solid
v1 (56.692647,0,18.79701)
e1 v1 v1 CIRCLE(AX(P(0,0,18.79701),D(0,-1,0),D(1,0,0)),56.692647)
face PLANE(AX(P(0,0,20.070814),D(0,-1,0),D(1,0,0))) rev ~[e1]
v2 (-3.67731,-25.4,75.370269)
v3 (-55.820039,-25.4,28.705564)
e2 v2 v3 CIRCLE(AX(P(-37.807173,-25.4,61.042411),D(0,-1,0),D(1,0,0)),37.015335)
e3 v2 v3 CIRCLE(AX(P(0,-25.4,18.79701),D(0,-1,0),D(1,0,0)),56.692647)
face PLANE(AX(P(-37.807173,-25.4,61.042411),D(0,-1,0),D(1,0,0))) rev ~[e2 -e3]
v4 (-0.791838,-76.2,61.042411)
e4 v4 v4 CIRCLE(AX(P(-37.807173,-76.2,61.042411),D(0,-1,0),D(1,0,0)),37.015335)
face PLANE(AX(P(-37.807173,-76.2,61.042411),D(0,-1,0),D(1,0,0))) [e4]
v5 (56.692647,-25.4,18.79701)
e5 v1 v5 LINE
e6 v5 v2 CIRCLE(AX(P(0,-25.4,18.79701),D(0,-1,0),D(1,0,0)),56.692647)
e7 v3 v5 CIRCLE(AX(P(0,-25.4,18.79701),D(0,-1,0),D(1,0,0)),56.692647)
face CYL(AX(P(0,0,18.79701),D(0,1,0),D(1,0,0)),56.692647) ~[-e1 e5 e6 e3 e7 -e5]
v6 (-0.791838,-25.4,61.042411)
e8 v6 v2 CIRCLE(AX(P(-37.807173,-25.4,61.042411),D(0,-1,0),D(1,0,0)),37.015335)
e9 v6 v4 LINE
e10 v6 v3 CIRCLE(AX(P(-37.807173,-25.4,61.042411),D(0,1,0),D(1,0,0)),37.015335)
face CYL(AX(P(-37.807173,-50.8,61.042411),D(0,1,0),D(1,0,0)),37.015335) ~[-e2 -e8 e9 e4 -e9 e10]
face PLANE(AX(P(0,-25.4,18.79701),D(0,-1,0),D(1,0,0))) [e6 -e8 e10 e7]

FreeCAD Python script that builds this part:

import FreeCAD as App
import Part
import Sketcher
Q = App.Units.Quantity

doc = App.newDocument("Part")
params = doc.addObject("Spreadsheet::Sheet", "Params")
for row, (alias, value) in enumerate([
    ("pad1_length", "1 in"),
    ("pad2_length", "1 in"),
    ("pad3_length", "1 in"),
    ("pad4_length", "1 in"),
], start=1):
    params.set(f"A{row}", alias)
    params.set(f"B{row}", "=" + value)
    params.setAlias(f"B{row}", alias)

body = doc.addObject("PartDesign::Body", "Body")

sketch1 = body.newObject("Sketcher::SketchObject", "Sketch")
sketch1.AttachmentSupport = (doc.getObject("XZ_Plane"), [""])
sketch1.MapMode = "FlatFace"
sketch1.addGeometry(Part.Circle(App.Vector(0, 19, 0), App.Vector(0, 0, 1), 57), False)
sketch1.addConstraint([
    Sketcher.Constraint("PointOnObject", 0, 3, -2),
    Sketcher.Constraint("Diameter", 0, Q("113.385294 mm")),
    Sketcher.Constraint("DistanceY", -1, 1, 0, 3, Q("18.79701 mm")),
])
pad1 = body.newObject("PartDesign::Pad", "Pad")
pad1.Profile = sketch1
pad1.setExpression("Length", "Params.pad1_length")

sketch2 = body.newObject("Sketcher::SketchObject", "Sketch001")
sketch2.AttachmentSupport = (doc.getObject("XZ_Plane"), [""])
sketch2.MapMode = "FlatFace"
sketch2.AttachmentOffset = App.Placement(App.Vector(0, 0, 1 * 25.4), App.Rotation())
sketch2.addGeometry(Part.Circle(App.Vector(-38, 61, 0), App.Vector(0, 0, 1), 37), False)
sketch2.addConstraint([
    Sketcher.Constraint("Diameter", 0, Q("74.03067 mm")),
    Sketcher.Constraint("DistanceY", -1, 1, 0, 3, Q("61.042411 mm")),
    Sketcher.Constraint("DistanceX", 0, 3, -1, 1, Q("37.807173 mm")),
])
pad2 = body.newObject("PartDesign::Pad", "Pad001")
pad2.Profile = sketch2
pad2.setExpression("Length", "Params.pad2_length")

sketch3 = body.newObject("Sketcher::SketchObject", "Sketch002")
sketch3.AttachmentSupport = (doc.getObject("XZ_Plane"), [""])
sketch3.MapMode = "FlatFace"
sketch3.AttachmentOffset = App.Placement(App.Vector(0, 0, 2 * 25.4), App.Rotation())
sketch3.addGeometry(Part.Circle(App.Vector(-38, 61, 0), App.Vector(0, 0, 1), 37), False)
sketch3.addConstraint([
    Sketcher.Constraint("Diameter", 0, Q("74.03067 mm")),
    Sketcher.Constraint("DistanceY", -1, 1, 0, 3, Q("61.042411 mm")),
    Sketcher.Constraint("DistanceX", 0, 3, -1, 1, Q("37.807173 mm")),
])
pad3 = body.newObject("PartDesign::Pad", "Pad002")
pad3.Profile = sketch3
pad3.setExpression("Length", "Params.pad3_length")

sketch4 = body.newObject("Sketcher::SketchObject", "Sketch003")
sketch4.AttachmentSupport = (doc.getObject("XZ_Plane"), [""])
sketch4.MapMode = "FlatFace"
sketch4.addGeometry(Part.Circle(App.Vector(0, 20, 0), App.Vector(0, 0, 1), 27), False)
sketch4.addConstraint([
    Sketcher.Constraint("PointOnObject", 0, 3, -2),
    Sketcher.Constraint("Diameter", 0, Q("53.749534 mm")),
    Sketcher.Constraint("DistanceY", -1, 1, 0, 3, Q("20.070814 mm")),
])
pad4 = body.newObject("PartDesign::Pad", "Pad003")
pad4.Profile = sketch4
pad4.setExpression("Length", "Params.pad4_length")

doc.recompute()
